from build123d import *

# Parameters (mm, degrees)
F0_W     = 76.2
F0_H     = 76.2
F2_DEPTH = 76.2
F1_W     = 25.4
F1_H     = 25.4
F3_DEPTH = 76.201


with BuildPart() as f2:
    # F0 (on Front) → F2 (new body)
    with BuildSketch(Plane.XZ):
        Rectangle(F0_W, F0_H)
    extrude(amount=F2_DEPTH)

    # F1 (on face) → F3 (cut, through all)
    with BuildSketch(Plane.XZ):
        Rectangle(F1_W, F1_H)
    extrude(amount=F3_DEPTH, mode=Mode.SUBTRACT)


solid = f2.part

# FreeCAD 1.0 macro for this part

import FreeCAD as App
import Part
import Sketcher

V = App.Vector
Q = App.Units.Quantity


def add_polygon(sketch, points):
    """Adds a closed chain of lines whose ends are joined by coincident constraints."""
    first, n = sketch.GeometryCount, len(points)
    for a, b in zip(points, points[1:] + points[:1]):
        sketch.addGeometry(Part.LineSegment(App.Vector(*a, 0), App.Vector(*b, 0)), False)
    for i in range(n):
        sketch.addConstraint(Sketcher.Constraint("Coincident", first + i, 2, first + (i + 1) % n, 1))

doc = App.newDocument("Part")
body = doc.addObject("PartDesign::Body", "Body")

# Sketch on XZ plane
sketch1 = body.newObject("Sketcher::SketchObject", "Sketch")
sketch1.AttachmentSupport = (doc.getObject("XZ_Plane"), [""])
sketch1.MapMode = "FlatFace"
add_polygon(sketch1, [(-38.1, 38.1), (-38.1, -38.1), (38.1, -38.1), (38.1, 38.1)])  # lines 0-3
sketch1.addConstraint([
    Sketcher.Constraint("Vertical", 0),
    Sketcher.Constraint("Horizontal", 1),
    Sketcher.Constraint("Vertical", 2),
    Sketcher.Constraint("Horizontal", 3),
    Sketcher.Constraint("Symmetric", 0, 2, 2, 2, -1, 1),
    Sketcher.Constraint("Equal", 3, 0),
    Sketcher.Constraint("DistanceX", 1, 1, 1, 2, Q("3 in")),
])
pad1 = body.newObject("PartDesign::Pad", "Pad")
pad1.Profile = sketch1
pad1.Length = Q("3 in")

# Sketch on XZ plane
sketch2 = body.newObject("Sketcher::SketchObject", "Sketch001")
sketch2.AttachmentSupport = (doc.getObject("XZ_Plane"), [""])
sketch2.MapMode = "FlatFace"
add_polygon(sketch2, [(-12.7, 12.7), (-12.7, -12.7), (12.7, -12.7), (12.7, 12.7)])  # lines 0-3
sketch2.addConstraint([
    Sketcher.Constraint("Vertical", 0),
    Sketcher.Constraint("Horizontal", 1),
    Sketcher.Constraint("Vertical", 2),
    Sketcher.Constraint("Horizontal", 3),
    Sketcher.Constraint("Symmetric", 0, 2, 2, 2, -1, 1),
    Sketcher.Constraint("Equal", 3, 0),
    Sketcher.Constraint("DistanceX", 1, 1, 1, 2, Q("1 in")),
])
pocket1 = body.newObject("PartDesign::Pocket", "Pocket")
pocket1.Profile = sketch2
pocket1.Type = "ThroughAll"
pocket1.Reversed = True

doc.recompute()
